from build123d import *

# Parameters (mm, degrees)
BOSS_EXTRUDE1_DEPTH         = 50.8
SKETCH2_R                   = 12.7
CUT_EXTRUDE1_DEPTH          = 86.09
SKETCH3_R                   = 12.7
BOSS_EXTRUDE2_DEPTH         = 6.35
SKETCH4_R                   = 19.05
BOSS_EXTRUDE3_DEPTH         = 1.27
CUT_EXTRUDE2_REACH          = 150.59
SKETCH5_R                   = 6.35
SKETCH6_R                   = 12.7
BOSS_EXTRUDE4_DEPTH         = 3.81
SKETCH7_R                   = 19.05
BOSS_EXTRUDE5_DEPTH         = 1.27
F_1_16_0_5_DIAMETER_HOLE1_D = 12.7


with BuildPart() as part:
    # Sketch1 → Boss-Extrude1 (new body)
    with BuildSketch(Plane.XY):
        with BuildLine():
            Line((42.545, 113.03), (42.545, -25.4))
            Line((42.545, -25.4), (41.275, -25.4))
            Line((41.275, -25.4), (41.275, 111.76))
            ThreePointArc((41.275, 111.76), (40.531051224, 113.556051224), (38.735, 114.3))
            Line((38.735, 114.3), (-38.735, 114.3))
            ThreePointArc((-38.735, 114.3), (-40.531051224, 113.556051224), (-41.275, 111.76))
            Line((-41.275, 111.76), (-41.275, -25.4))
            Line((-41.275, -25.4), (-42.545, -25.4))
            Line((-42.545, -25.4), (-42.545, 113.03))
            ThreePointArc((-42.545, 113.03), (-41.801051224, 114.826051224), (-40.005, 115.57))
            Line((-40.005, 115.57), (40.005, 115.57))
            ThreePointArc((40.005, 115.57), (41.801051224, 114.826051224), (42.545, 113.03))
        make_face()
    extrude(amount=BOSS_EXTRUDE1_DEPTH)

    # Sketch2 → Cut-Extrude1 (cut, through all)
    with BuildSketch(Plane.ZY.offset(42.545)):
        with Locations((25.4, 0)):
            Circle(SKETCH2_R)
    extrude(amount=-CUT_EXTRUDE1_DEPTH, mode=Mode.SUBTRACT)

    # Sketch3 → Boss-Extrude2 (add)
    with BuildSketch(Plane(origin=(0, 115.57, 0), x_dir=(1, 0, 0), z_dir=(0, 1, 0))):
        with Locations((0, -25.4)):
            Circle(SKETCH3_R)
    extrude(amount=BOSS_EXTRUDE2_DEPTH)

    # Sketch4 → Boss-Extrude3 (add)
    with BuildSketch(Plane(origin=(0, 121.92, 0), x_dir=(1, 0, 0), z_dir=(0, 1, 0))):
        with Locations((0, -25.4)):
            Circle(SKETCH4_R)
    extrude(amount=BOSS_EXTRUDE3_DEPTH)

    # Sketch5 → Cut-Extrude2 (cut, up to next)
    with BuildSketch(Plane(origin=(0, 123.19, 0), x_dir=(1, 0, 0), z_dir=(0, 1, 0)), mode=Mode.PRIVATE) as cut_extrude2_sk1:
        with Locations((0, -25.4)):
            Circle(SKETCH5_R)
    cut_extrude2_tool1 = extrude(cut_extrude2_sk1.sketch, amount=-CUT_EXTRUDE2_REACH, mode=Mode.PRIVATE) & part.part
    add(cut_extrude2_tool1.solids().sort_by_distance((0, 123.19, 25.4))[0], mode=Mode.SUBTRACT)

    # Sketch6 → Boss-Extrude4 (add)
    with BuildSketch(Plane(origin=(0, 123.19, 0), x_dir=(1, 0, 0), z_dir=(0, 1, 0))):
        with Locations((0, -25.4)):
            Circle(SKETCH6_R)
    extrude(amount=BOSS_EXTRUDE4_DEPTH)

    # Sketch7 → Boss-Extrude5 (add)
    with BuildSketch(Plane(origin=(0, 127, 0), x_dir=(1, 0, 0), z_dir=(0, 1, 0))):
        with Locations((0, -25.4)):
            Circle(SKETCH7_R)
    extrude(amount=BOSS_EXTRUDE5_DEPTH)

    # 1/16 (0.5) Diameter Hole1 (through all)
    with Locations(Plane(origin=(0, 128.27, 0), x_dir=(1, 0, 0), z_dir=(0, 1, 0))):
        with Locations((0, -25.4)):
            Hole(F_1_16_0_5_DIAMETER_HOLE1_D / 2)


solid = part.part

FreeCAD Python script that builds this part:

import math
import FreeCAD as App
import Part
import Sketcher
Q = App.Units.Quantity

doc = App.newDocument("Part")
body = doc.addObject("PartDesign::Body", "Body")

sketch1 = body.newObject("Sketcher::SketchObject", "Sketch")
sketch1.AttachmentSupport = (doc.getObject("XY_Plane"), [""])
sketch1.MapMode = "FlatFace"
sketch1.addGeometry([
    Part.LineSegment(App.Vector(42.5, -25.4, 0), App.Vector(42.5, 113, 0)),
    Part.ArcOfCircle(Part.Circle(App.Vector(40, 113, 0), App.Vector(0, 0, 1), 2.5), math.radians(0), math.radians(90)),
    Part.LineSegment(App.Vector(40, 115.6, 0), App.Vector(-40, 115.6, 0)),
    Part.ArcOfCircle(Part.Circle(App.Vector(-40, 113, 0), App.Vector(0, 0, 1), 2.5), math.radians(90), math.radians(180)),
    Part.LineSegment(App.Vector(-42.5, 113, 0), App.Vector(-42.5, -25.4, 0)),
    Part.LineSegment(App.Vector(-42.5, -25.4, 0), App.Vector(-41.3, -25.4, 0)),
    Part.LineSegment(App.Vector(-41.3, -25.4, 0), App.Vector(-41.3, 111.8, 0)),
    Part.ArcOfCircle(Part.Circle(App.Vector(-38.7, 111.8, 0), App.Vector(0, 0, 1), 2.5), math.radians(90), math.radians(180)),
    Part.LineSegment(App.Vector(-38.7, 114.3, 0), App.Vector(38.7, 114.3, 0)),
    Part.ArcOfCircle(Part.Circle(App.Vector(38.7, 111.8, 0), App.Vector(0, 0, 1), 2.5), math.radians(0), math.radians(90)),
    Part.LineSegment(App.Vector(41.3, 111.8, 0), App.Vector(41.3, -25.4, 0)),
    Part.LineSegment(App.Vector(41.3, -25.4, 0), App.Vector(42.5, -25.4, 0)),
], False)
sketch1.addConstraint([
    Sketcher.Constraint("Tangent", 0, 2, 1, 1),
    Sketcher.Constraint("Tangent", 1, 2, 2, 1),
    Sketcher.Constraint("Tangent", 2, 2, 3, 1),
    Sketcher.Constraint("Tangent", 3, 2, 4, 1),
    Sketcher.Constraint("Coincident", 4, 2, 5, 1),
    Sketcher.Constraint("Coincident", 5, 2, 6, 1),
    Sketcher.Constraint("Tangent", 6, 2, 7, 2),
    Sketcher.Constraint("Tangent", 7, 1, 8, 1),
    Sketcher.Constraint("Tangent", 8, 2, 9, 2),
    Sketcher.Constraint("Tangent", 9, 1, 10, 1),
    Sketcher.Constraint("Coincident", 10, 2, 11, 1),
    Sketcher.Constraint("Coincident", 11, 2, 0, 1),
    Sketcher.Constraint("Vertical", 0),
    Sketcher.Constraint("Horizontal", 2),
    Sketcher.Constraint("Vertical", 4),
    Sketcher.Constraint("Horizontal", 5),
    Sketcher.Constraint("Vertical", 6),
    Sketcher.Constraint("Horizontal", 8),
    Sketcher.Constraint("Vertical", 10),
    Sketcher.Constraint("Horizontal", 11),
    Sketcher.Constraint("Equal", 1, 3),
    Sketcher.Constraint("Equal", 3, 7),
    Sketcher.Constraint("Equal", 7, 9),
    Sketcher.Constraint("Symmetric", 5, 2, 10, 2, -2),
    Sketcher.Constraint("Equal", 5, 11),
    Sketcher.Constraint("Radius", 1, Q("0.1 in")),
    Sketcher.Constraint("DistanceY", 6, 1, 6, 2, Q("5.4 in")),
    Sketcher.Constraint("DistanceY", 4, 2, -1, 1, Q("1 in")),
    Sketcher.Constraint("DistanceX", 2, 2, 2, 1, Q("3.15 in")),
    Sketcher.Constraint("DistanceX", 5, 1, 5, 2, Q("0.05 in")),
    Sketcher.Constraint("DistanceY", 0, 1, 0, 2, Q("5.45 in")),
])
pad1 = body.newObject("PartDesign::Pad", "Pad")
pad1.Profile = sketch1
pad1.Length = Q("2 in")

sketch2 = body.newObject("Sketcher::SketchObject", "Sketch001")
sketch2.AttachmentSupport = (doc.getObject("YZ_Plane"), [""])
sketch2.MapMode = "FlatFace"
sketch2.AttachmentOffset = App.Placement(App.Vector(0, 0, -1.675 * 25.4), App.Rotation())
sketch2.addGeometry(Part.Circle(App.Vector(0, 25, 0), App.Vector(0, 0, 1), 13), False)
sketch2.addConstraint([
    Sketcher.Constraint("PointOnObject", 0, 3, -2),
    Sketcher.Constraint("Diameter", 0, Q("1 in")),
    Sketcher.Constraint("DistanceY", -1, 1, 0, 3, Q("1 in")),
])
pocket1 = body.newObject("PartDesign::Pocket", "Pocket")
pocket1.Profile = sketch2
pocket1.Type = "ThroughAll"
pocket1.Reversed = True

sketch3 = body.newObject("Sketcher::SketchObject", "Sketch002")
sketch3.AttachmentSupport = (doc.getObject("XZ_Plane"), [""])
sketch3.MapMode = "FlatFace"
sketch3.AttachmentOffset = App.Placement(App.Vector(0, 0, -4.55 * 25.4), App.Rotation())
sketch3.addGeometry(Part.Circle(App.Vector(0, 25, 0), App.Vector(0, 0, 1), 13), False)
sketch3.addConstraint([
    Sketcher.Constraint("PointOnObject", 0, 3, -2),
    Sketcher.Constraint("Diameter", 0, Q("1 in")),
    Sketcher.Constraint("DistanceY", -1, 1, 0, 3, Q("1 in")),
])
pad2 = body.newObject("PartDesign::Pad", "Pad001")
pad2.Profile = sketch3
pad2.Length = Q("0.25 in")
pad2.Reversed = True

sketch4 = body.newObject("Sketcher::SketchObject", "Sketch003")
sketch4.AttachmentSupport = (doc.getObject("XZ_Plane"), [""])
sketch4.MapMode = "FlatFace"
sketch4.AttachmentOffset = App.Placement(App.Vector(0, 0, -4.8 * 25.4), App.Rotation())
sketch4.addGeometry(Part.Circle(App.Vector(0, 25, 0), App.Vector(0, 0, 1), 19), False)
sketch4.addConstraint([
    Sketcher.Constraint("PointOnObject", 0, 3, -2),
    Sketcher.Constraint("Diameter", 0, Q("1.5 in")),
    Sketcher.Constraint("DistanceY", -1, 1, 0, 3, Q("1 in")),
])
pad3 = body.newObject("PartDesign::Pad", "Pad002")
pad3.Profile = sketch4
pad3.Length = Q("0.05 in")
pad3.Reversed = True

sketch5 = body.newObject("Sketcher::SketchObject", "Sketch004")
sketch5.AttachmentSupport = (doc.getObject("XZ_Plane"), [""])
sketch5.MapMode = "FlatFace"
sketch5.AttachmentOffset = App.Placement(App.Vector(0, 0, -4.85 * 25.4), App.Rotation())
sketch5.addGeometry(Part.Circle(App.Vector(0, 25, 0), App.Vector(0, 0, 1), 6), False)
sketch5.addConstraint([
    Sketcher.Constraint("PointOnObject", 0, 3, -2),
    Sketcher.Constraint("Diameter", 0, Q("0.5 in")),
    Sketcher.Constraint("DistanceY", -1, 1, 0, 3, Q("1 in")),
])
pocket2 = body.newObject("PartDesign::Pocket", "Pocket001")
pocket2.Profile = sketch5
pocket2.Type = "UpToFirst"
pocket2.Reversed = True

sketch6 = body.newObject("Sketcher::SketchObject", "Sketch005")
sketch6.AttachmentSupport = (doc.getObject("XZ_Plane"), [""])
sketch6.MapMode = "FlatFace"
sketch6.AttachmentOffset = App.Placement(App.Vector(0, 0, -4.85 * 25.4), App.Rotation())
sketch6.addGeometry(Part.Circle(App.Vector(0, 25, 0), App.Vector(0, 0, 1), 13), False)
sketch6.addConstraint([
    Sketcher.Constraint("PointOnObject", 0, 3, -2),
    Sketcher.Constraint("Diameter", 0, Q("1 in")),
    Sketcher.Constraint("DistanceY", -1, 1, 0, 3, Q("1 in")),
])
pad4 = body.newObject("PartDesign::Pad", "Pad003")
pad4.Profile = sketch6
pad4.Length = Q("0.15 in")
pad4.Reversed = True

sketch7 = body.newObject("Sketcher::SketchObject", "Sketch006")
sketch7.AttachmentSupport = (doc.getObject("XZ_Plane"), [""])
sketch7.MapMode = "FlatFace"
sketch7.AttachmentOffset = App.Placement(App.Vector(0, 0, -5 * 25.4), App.Rotation())
sketch7.addGeometry(Part.Circle(App.Vector(0, 25, 0), App.Vector(0, 0, 1), 19), False)
sketch7.addConstraint([
    Sketcher.Constraint("PointOnObject", 0, 3, -2),
    Sketcher.Constraint("Diameter", 0, Q("1.5 in")),
    Sketcher.Constraint("DistanceY", -1, 1, 0, 3, Q("1 in")),
])
pad5 = body.newObject("PartDesign::Pad", "Pad004")
pad5.Profile = sketch7
pad5.Length = Q("0.05 in")
pad5.Reversed = True

sketch8 = body.newObject("Sketcher::SketchObject", "Sketch007")
sketch8.AttachmentSupport = (doc.getObject("XZ_Plane"), [""])
sketch8.MapMode = "FlatFace"
sketch8.AttachmentOffset = App.Placement(App.Vector(0, 0, -5.05 * 25.4), App.Rotation())
sketch8.addGeometry(Part.Circle(App.Vector(0, 25, 0), App.Vector(0, 0, 1), 6), False)
sketch8.addConstraint([
    Sketcher.Constraint("PointOnObject", 0, 3, -2),
    Sketcher.Constraint("Diameter", 0, Q("0.5 in")),
    Sketcher.Constraint("DistanceY", -1, 1, 0, 3, Q("1 in")),
])
doc.recompute()
hole = body.newObject("PartDesign::Hole", "Hole")
hole.Profile = sketch8
hole.ThreadType = "None"
hole.Diameter = Q("0.5 in")
hole.DepthType = "ThroughAll"
hole.Reversed = True

doc.recompute()
